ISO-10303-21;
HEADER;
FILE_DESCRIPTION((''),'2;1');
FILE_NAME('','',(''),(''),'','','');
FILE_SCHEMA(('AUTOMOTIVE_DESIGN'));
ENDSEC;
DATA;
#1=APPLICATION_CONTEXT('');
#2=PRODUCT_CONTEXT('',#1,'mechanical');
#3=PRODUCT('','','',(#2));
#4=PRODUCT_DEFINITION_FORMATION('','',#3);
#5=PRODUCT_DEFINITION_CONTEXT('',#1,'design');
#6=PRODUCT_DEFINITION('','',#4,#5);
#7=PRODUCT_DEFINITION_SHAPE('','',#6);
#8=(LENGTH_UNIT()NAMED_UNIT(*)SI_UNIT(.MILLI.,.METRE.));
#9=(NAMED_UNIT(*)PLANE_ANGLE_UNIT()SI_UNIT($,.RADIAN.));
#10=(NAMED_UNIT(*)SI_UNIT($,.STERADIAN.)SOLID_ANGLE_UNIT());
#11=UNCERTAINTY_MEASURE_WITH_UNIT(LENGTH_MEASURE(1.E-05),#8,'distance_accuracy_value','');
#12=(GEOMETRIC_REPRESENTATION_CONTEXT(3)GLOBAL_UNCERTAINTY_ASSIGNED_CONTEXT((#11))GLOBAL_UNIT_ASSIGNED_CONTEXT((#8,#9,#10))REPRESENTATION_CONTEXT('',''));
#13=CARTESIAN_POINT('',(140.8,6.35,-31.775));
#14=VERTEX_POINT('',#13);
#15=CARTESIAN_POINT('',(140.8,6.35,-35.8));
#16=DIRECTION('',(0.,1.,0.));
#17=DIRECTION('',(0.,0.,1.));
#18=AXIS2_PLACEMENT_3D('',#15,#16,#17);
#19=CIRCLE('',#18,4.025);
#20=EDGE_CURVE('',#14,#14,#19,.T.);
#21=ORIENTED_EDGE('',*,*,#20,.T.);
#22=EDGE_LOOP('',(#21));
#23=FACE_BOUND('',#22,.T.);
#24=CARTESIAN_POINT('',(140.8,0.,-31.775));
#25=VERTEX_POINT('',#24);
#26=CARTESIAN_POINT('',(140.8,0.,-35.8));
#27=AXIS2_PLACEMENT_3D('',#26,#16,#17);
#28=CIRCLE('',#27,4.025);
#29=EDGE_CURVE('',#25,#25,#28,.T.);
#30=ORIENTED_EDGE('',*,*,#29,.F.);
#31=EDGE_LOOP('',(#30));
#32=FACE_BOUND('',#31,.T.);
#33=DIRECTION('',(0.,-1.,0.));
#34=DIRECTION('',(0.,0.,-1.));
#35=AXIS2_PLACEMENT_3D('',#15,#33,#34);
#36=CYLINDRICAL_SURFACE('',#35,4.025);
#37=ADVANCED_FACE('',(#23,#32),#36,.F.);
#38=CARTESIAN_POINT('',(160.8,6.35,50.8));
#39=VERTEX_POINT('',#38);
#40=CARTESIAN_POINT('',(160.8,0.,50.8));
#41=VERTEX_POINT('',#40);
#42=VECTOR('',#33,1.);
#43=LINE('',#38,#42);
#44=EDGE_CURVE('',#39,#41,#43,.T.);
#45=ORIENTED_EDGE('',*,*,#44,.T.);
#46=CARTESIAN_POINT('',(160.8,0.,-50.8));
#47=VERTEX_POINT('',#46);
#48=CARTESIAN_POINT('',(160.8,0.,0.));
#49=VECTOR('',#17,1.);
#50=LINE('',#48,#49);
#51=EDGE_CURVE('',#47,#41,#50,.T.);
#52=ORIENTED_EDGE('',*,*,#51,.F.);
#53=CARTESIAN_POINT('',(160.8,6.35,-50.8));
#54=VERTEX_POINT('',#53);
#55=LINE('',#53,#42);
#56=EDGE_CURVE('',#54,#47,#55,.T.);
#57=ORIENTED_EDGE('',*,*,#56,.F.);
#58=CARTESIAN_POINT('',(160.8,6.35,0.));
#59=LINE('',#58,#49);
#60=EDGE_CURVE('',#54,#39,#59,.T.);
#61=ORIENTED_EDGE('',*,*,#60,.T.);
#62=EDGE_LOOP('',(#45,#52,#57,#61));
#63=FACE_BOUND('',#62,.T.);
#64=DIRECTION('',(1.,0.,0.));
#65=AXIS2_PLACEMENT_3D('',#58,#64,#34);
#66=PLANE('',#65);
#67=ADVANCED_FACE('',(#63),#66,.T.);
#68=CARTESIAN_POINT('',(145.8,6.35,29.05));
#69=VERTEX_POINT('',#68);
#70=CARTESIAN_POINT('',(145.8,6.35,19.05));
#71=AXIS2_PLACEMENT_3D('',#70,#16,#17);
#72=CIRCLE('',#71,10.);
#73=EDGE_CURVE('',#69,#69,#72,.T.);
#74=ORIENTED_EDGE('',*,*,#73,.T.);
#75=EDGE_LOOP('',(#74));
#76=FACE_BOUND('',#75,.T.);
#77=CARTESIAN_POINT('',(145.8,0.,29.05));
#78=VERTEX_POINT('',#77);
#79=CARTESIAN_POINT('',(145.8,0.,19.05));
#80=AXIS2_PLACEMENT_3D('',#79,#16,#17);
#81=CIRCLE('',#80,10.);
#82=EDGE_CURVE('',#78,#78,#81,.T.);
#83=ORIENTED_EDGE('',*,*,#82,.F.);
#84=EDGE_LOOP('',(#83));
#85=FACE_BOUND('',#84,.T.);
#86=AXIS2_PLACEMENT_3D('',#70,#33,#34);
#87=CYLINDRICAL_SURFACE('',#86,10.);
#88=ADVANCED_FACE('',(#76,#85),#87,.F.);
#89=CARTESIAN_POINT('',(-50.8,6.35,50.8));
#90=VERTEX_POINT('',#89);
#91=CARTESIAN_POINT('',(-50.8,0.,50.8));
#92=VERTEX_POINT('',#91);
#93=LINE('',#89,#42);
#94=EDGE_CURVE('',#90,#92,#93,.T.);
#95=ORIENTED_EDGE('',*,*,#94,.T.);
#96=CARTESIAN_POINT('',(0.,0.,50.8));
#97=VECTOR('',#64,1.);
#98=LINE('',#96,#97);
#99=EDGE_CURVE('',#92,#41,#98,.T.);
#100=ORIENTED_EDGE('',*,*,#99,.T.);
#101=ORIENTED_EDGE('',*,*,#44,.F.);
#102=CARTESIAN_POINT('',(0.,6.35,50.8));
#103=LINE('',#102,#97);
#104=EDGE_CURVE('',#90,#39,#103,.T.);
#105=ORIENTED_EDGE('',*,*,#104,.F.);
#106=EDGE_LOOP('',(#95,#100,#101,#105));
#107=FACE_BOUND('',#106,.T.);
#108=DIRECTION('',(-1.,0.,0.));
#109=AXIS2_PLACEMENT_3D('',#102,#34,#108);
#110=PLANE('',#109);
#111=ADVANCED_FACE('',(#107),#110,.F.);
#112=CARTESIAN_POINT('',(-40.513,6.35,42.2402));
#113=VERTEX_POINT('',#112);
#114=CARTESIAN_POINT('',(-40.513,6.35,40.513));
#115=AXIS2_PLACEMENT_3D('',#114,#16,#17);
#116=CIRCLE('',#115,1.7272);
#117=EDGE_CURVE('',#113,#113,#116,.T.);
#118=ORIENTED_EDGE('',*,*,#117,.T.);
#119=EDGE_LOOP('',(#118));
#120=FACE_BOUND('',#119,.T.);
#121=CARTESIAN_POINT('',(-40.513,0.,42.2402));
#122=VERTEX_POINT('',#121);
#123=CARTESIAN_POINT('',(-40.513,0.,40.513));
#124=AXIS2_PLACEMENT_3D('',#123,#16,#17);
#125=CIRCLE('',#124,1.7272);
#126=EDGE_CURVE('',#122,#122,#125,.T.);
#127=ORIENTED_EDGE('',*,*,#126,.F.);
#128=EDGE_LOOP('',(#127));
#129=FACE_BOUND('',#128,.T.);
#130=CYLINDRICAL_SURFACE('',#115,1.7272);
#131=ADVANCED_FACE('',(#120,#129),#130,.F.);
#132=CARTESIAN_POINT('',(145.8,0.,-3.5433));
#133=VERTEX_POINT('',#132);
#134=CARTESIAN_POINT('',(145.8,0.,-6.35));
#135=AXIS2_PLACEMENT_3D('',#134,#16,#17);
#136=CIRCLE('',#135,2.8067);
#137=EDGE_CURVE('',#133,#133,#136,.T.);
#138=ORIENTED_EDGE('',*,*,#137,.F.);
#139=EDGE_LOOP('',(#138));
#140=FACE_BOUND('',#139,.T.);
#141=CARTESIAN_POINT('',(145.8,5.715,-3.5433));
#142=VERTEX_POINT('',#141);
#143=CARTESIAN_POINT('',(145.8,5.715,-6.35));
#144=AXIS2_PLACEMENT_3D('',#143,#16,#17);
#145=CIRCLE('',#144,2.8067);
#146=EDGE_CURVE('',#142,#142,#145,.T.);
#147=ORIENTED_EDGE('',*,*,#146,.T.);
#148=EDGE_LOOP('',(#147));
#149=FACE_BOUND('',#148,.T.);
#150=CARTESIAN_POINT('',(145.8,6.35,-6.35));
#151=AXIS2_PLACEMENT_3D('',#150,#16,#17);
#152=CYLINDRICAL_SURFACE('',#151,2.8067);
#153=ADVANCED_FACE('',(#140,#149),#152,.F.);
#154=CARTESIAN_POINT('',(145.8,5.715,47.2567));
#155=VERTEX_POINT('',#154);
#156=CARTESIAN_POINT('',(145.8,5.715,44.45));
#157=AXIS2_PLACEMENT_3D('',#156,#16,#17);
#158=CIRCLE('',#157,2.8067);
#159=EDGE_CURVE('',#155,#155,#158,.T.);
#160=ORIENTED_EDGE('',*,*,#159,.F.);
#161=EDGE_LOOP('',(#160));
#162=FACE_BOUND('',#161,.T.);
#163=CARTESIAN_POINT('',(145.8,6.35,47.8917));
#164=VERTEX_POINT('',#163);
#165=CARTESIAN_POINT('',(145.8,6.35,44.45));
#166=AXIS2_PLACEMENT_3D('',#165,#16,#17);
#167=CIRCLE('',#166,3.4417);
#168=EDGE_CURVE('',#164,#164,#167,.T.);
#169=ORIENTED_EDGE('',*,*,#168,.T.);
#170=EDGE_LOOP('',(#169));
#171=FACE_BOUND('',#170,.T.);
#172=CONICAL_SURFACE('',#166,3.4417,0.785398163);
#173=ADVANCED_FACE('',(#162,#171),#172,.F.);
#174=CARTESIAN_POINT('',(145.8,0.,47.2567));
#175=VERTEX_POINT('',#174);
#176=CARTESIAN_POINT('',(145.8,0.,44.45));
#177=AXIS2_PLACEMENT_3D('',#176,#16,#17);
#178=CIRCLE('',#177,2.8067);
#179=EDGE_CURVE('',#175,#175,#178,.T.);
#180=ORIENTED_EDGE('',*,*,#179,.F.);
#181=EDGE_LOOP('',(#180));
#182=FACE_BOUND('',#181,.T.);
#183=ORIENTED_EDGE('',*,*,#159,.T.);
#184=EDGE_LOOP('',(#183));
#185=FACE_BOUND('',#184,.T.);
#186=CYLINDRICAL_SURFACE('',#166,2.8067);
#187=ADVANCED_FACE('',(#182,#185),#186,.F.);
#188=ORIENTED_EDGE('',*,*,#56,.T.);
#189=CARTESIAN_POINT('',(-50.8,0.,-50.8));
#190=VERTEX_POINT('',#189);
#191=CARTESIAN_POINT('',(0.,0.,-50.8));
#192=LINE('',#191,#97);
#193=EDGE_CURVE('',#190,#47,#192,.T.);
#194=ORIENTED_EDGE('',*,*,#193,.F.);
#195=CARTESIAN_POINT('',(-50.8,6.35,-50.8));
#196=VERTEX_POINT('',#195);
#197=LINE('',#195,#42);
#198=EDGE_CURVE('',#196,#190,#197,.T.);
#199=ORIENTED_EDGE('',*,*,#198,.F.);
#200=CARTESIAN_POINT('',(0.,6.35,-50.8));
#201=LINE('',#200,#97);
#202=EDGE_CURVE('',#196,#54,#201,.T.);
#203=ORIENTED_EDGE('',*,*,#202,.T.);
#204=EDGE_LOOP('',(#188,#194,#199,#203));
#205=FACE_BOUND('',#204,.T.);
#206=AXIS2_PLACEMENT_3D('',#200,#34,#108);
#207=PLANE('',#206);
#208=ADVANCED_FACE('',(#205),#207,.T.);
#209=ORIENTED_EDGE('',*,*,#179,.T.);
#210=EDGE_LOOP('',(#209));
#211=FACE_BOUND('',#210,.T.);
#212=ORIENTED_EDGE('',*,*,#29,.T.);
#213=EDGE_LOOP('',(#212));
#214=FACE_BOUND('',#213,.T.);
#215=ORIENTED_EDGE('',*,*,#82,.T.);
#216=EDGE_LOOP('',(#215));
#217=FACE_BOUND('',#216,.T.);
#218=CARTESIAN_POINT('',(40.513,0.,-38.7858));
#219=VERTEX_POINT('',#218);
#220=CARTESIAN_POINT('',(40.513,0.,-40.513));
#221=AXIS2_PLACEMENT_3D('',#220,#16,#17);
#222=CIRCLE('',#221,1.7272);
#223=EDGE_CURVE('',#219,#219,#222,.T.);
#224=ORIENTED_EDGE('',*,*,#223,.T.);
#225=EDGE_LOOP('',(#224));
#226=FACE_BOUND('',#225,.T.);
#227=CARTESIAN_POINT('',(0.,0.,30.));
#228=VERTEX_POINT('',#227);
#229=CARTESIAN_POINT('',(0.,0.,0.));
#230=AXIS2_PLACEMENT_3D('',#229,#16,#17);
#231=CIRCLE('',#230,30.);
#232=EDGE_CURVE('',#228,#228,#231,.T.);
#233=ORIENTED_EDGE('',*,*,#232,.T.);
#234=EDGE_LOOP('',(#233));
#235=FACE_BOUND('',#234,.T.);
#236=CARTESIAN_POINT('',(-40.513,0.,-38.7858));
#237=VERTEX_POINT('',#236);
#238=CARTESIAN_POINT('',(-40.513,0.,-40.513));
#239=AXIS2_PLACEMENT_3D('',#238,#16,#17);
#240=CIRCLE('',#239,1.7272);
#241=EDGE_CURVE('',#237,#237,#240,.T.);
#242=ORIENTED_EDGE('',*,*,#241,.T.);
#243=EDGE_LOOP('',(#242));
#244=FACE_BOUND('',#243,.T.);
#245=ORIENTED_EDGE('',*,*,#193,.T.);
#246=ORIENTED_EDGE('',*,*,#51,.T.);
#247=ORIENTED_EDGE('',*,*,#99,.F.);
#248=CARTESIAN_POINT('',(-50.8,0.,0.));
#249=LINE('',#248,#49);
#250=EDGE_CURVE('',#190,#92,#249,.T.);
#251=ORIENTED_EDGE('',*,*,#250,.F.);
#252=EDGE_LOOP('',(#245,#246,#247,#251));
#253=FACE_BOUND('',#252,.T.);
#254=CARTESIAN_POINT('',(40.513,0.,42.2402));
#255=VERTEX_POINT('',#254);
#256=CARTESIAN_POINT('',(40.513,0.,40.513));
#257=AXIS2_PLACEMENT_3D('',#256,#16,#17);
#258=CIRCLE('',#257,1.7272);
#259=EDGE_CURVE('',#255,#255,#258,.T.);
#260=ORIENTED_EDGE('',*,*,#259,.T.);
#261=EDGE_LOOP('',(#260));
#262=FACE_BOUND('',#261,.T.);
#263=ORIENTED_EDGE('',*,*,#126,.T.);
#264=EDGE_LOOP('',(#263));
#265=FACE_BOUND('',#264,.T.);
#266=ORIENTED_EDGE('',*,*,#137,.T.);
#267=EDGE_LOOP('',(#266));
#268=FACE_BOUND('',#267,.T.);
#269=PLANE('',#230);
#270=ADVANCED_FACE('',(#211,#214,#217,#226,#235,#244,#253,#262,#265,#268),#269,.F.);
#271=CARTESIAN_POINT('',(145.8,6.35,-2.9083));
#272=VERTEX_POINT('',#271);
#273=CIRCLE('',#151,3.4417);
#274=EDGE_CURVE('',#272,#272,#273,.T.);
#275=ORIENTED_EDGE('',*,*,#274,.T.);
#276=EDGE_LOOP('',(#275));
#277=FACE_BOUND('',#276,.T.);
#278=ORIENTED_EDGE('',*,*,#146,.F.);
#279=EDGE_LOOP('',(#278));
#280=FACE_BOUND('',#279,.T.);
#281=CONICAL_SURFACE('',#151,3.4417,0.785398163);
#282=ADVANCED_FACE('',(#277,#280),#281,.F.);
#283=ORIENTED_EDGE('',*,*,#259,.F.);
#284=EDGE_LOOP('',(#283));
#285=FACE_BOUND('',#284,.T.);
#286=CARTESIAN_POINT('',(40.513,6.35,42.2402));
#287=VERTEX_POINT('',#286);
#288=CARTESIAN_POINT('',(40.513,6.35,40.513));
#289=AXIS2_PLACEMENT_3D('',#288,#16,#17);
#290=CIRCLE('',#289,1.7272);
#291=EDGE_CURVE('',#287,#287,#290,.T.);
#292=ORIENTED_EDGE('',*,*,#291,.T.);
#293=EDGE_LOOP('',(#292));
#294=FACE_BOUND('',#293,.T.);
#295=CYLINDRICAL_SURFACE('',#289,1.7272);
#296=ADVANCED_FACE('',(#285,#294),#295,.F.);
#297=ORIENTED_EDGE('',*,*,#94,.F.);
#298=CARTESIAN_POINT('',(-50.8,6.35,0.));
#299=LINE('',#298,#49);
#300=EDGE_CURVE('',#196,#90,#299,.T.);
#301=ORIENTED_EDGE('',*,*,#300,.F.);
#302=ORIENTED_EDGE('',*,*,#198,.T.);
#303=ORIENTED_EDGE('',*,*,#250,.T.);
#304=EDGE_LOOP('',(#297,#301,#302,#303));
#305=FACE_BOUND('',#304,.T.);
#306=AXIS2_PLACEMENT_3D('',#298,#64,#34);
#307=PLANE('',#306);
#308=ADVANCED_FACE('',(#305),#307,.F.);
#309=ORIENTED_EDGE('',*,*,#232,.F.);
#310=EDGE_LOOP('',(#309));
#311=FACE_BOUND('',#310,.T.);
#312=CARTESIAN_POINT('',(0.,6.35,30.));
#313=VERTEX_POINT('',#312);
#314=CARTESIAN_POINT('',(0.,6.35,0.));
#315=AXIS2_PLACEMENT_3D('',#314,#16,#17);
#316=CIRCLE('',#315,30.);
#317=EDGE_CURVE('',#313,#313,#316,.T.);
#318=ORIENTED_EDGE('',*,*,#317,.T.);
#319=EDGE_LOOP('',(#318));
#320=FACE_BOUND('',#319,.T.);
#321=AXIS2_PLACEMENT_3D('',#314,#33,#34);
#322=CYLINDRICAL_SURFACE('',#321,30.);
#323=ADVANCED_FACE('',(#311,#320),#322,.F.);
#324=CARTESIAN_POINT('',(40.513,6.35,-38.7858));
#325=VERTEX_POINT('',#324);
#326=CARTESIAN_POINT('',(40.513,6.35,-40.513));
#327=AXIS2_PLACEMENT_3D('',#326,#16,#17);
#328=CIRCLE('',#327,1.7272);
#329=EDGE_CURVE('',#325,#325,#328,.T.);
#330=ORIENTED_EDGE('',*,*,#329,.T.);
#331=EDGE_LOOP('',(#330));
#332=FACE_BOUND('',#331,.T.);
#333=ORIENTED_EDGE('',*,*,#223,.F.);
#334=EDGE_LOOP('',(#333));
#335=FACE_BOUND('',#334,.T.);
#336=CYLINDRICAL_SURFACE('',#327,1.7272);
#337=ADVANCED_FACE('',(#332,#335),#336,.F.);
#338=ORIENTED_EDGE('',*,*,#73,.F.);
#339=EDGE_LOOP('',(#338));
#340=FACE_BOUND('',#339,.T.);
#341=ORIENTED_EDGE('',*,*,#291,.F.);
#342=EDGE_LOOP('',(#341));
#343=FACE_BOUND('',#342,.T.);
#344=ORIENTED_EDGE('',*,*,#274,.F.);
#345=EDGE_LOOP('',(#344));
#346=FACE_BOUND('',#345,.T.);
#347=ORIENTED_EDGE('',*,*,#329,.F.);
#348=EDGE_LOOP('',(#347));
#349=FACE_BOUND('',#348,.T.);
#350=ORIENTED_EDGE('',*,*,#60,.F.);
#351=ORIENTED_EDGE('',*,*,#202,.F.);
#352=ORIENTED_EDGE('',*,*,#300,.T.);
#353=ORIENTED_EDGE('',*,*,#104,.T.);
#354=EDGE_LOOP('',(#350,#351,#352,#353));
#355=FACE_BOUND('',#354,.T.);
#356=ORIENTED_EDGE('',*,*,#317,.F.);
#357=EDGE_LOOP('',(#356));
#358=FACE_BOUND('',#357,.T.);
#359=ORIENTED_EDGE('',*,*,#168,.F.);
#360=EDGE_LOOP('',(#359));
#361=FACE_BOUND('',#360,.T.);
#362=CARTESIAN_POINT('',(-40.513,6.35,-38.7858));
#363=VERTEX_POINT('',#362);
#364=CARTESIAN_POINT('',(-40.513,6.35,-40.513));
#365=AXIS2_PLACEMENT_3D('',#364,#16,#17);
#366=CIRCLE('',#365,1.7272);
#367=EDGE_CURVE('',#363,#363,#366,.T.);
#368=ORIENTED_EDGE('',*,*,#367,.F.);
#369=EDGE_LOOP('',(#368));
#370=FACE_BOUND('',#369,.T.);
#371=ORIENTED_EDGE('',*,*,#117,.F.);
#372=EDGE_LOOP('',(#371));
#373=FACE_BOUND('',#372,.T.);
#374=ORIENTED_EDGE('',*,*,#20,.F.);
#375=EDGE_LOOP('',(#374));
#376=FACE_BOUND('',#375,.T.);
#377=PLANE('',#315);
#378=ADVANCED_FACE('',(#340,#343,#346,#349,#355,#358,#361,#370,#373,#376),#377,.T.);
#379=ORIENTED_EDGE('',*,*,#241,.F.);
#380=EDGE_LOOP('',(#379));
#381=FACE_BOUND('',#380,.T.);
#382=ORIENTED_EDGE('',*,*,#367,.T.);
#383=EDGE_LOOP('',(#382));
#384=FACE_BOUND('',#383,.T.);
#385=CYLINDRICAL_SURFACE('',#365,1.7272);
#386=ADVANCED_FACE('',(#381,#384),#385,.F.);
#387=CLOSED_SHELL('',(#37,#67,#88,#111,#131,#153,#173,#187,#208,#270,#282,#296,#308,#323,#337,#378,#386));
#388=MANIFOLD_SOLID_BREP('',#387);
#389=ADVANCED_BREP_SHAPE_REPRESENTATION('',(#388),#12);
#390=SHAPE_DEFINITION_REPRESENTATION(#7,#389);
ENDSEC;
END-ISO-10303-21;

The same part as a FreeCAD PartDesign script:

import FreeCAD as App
import Part
import Sketcher

V = App.Vector
Q = App.Units.Quantity


def add_polygon(sketch, points):
    """Adds a closed chain of lines whose ends are joined by coincident constraints."""
    first, n = sketch.GeometryCount, len(points)
    for a, b in zip(points, points[1:] + points[:1]):
        sketch.addGeometry(Part.LineSegment(App.Vector(*a, 0), App.Vector(*b, 0)), False)
    for i in range(n):
        sketch.addConstraint(Sketcher.Constraint("Coincident", first + i, 2, first + (i + 1) % n, 1))

doc = App.newDocument("Part")
body = doc.addObject("PartDesign::Body", "Body")

sketch1 = body.newObject("Sketcher::SketchObject", "Sketch")
sketch1.AttachmentSupport = (doc.getObject("XZ_Plane"), [""])
sketch1.MapMode = "FlatFace"
add_polygon(sketch1, [(-50.8, -50.8), (-50.8, 50.8), (160.8, 50.8), (160.8, -50.8)])
sketch1.addGeometry(Part.Circle(V(0, 0, 0), V(0, 0, 1), 30), False)
sketch1.addGeometry(Part.Circle(V(145.8, 19.1, 0), V(0, 0, 1), 10), False)
sketch1.addGeometry(Part.Circle(V(140.8, -35.8, 0), V(0, 0, 1), 4), False)
sketch1.addConstraint(Sketcher.Constraint("Vertical", 0))
sketch1.addConstraint(Sketcher.Constraint("Horizontal", 1))
sketch1.addConstraint(Sketcher.Constraint("Vertical", 2))
sketch1.addConstraint(Sketcher.Constraint("Horizontal", 3))
sketch1.addConstraint(Sketcher.Constraint("Coincident", 4, 3, -1, 1))
sketch1.addConstraint(Sketcher.Constraint("DistanceY", 0, 1, 0, 2, Q("4 in")))
sketch1.addConstraint(Sketcher.Constraint("DistanceX", 0, 2, -1, 1, Q("2 in")))
sketch1.addConstraint(Sketcher.Constraint("DistanceY", -1, 1, 0, 2, Q("2 in")))
sketch1.addConstraint(Sketcher.Constraint("Diameter", 4, Q("60 mm")))
sketch1.addConstraint(Sketcher.Constraint("Diameter", 5, Q("20 mm")))
sketch1.addConstraint(Sketcher.Constraint("Diameter", 6, Q("8.05 mm")))
sketch1.addConstraint(Sketcher.Constraint("DistanceY", -1, 1, 5, 3, Q("0.75 in")))
sketch1.addConstraint(Sketcher.Constraint("DistanceX", 1, 1, 1, 2, Q("211.6 mm")))
sketch1.addConstraint(Sketcher.Constraint("DistanceX", -1, 1, 5, 3, Q("145.8 mm")))
sketch1.addConstraint(Sketcher.Constraint("DistanceX", -1, 1, 6, 3, Q("140.8 mm")))
sketch1.addConstraint(Sketcher.Constraint("DistanceY", 6, 3, -1, 1, Q("35.8 mm")))
pad1 = body.newObject("PartDesign::Pad", "Pad")
pad1.Profile = sketch1
pad1.Length = Q("0.25 in")
pad1.Reversed = True

sketch2 = body.newObject("Sketcher::SketchObject", "Sketch001")
sketch2.AttachmentSupport = (doc.getObject("XZ_Plane"), [""])
sketch2.MapMode = "FlatFace"
sketch2.AttachmentOffset = App.Placement(V(0, 0, -0.25 * 25.4), App.Rotation())
sketch2.addGeometry(Part.Circle(V(-40.5, -40.5, 0), V(0, 0, 1), 1.7), False)
sketch2.addGeometry(Part.Circle(V(40.5, -40.5, 0), V(0, 0, 1), 1.7), False)
sketch2.addGeometry(Part.Circle(V(40.5, 40.5, 0), V(0, 0, 1), 1.7), False)
sketch2.addGeometry(Part.Circle(V(-40.5, 40.5, 0), V(0, 0, 1), 1.7), False)
sketch2.addConstraint(Sketcher.Constraint("Equal", 0, 1))
sketch2.addConstraint(Sketcher.Constraint("Equal", 1, 2))
sketch2.addConstraint(Sketcher.Constraint("Equal", 2, 3))
sketch2.addConstraint(Sketcher.Constraint("Symmetric", 0, 3, 2, 3, -1, 1))
sketch2.addConstraint(Sketcher.Constraint("Symmetric", 1, 3, 3, 3, -1, 1))
sketch2.addConstraint(Sketcher.Constraint("Symmetric", 0, 3, 1, 3, -2))
sketch2.addConstraint(Sketcher.Constraint("Diameter", 0, Q("0.136 in")))
sketch2.addConstraint(Sketcher.Constraint("DistanceX", 0, 3, 1, 3, Q("3.19 in")))
sketch2.addConstraint(Sketcher.Constraint("DistanceY", 1, 3, 2, 3, Q("3.19 in")))
doc.recompute()
hole = body.newObject("PartDesign::Hole", "Hole")
hole.Profile = sketch2
hole.ThreadType = "None"
hole.Diameter = Q("0.136 in")
hole.DepthType = "ThroughAll"
hole.Reversed = True

sketch3 = body.newObject("Sketcher::SketchObject", "Sketch002")
sketch3.AttachmentSupport = (doc.getObject("XZ_Plane"), [""])
sketch3.MapMode = "FlatFace"
sketch3.AttachmentOffset = App.Placement(V(0, 0, -0.25 * 25.4), App.Rotation())
sketch3.addGeometry(Part.Circle(V(145.8, -6.3, 0), V(0, 0, 1), 2.8), False)
sketch3.addGeometry(Part.Circle(V(145.8, 44.5, 0), V(0, 0, 1), 2.8), False)
sketch3.addConstraint(Sketcher.Constraint("Equal", 0, 1))
sketch3.addConstraint(Sketcher.Constraint("Vertical", 0, 3, 1, 3))
sketch3.addConstraint(Sketcher.Constraint("Diameter", 0, Q("0.221 in")))
sketch3.addConstraint(Sketcher.Constraint("DistanceY", 0, 3, 1, 3, Q("2 in")))
sketch3.addConstraint(Sketcher.Constraint("DistanceY", 0, 3, -1, 1, Q("0.25 in")))
sketch3.addConstraint(Sketcher.Constraint("DistanceX", -1, 1, 0, 3, Q("145.8 mm")))
doc.recompute()
hole2 = body.newObject("PartDesign::Hole", "Hole001")
hole2.Profile = sketch3
hole2.ThreadType = "None"
hole2.Diameter = Q("0.221 in")
hole2.DepthType = "ThroughAll"
hole2.HoleCutType = "Countersink"
hole2.HoleCutDiameter = Q("0.271 in")
hole2.HoleCutCountersinkAngle = 90
hole2.Reversed = True

doc.recompute()
